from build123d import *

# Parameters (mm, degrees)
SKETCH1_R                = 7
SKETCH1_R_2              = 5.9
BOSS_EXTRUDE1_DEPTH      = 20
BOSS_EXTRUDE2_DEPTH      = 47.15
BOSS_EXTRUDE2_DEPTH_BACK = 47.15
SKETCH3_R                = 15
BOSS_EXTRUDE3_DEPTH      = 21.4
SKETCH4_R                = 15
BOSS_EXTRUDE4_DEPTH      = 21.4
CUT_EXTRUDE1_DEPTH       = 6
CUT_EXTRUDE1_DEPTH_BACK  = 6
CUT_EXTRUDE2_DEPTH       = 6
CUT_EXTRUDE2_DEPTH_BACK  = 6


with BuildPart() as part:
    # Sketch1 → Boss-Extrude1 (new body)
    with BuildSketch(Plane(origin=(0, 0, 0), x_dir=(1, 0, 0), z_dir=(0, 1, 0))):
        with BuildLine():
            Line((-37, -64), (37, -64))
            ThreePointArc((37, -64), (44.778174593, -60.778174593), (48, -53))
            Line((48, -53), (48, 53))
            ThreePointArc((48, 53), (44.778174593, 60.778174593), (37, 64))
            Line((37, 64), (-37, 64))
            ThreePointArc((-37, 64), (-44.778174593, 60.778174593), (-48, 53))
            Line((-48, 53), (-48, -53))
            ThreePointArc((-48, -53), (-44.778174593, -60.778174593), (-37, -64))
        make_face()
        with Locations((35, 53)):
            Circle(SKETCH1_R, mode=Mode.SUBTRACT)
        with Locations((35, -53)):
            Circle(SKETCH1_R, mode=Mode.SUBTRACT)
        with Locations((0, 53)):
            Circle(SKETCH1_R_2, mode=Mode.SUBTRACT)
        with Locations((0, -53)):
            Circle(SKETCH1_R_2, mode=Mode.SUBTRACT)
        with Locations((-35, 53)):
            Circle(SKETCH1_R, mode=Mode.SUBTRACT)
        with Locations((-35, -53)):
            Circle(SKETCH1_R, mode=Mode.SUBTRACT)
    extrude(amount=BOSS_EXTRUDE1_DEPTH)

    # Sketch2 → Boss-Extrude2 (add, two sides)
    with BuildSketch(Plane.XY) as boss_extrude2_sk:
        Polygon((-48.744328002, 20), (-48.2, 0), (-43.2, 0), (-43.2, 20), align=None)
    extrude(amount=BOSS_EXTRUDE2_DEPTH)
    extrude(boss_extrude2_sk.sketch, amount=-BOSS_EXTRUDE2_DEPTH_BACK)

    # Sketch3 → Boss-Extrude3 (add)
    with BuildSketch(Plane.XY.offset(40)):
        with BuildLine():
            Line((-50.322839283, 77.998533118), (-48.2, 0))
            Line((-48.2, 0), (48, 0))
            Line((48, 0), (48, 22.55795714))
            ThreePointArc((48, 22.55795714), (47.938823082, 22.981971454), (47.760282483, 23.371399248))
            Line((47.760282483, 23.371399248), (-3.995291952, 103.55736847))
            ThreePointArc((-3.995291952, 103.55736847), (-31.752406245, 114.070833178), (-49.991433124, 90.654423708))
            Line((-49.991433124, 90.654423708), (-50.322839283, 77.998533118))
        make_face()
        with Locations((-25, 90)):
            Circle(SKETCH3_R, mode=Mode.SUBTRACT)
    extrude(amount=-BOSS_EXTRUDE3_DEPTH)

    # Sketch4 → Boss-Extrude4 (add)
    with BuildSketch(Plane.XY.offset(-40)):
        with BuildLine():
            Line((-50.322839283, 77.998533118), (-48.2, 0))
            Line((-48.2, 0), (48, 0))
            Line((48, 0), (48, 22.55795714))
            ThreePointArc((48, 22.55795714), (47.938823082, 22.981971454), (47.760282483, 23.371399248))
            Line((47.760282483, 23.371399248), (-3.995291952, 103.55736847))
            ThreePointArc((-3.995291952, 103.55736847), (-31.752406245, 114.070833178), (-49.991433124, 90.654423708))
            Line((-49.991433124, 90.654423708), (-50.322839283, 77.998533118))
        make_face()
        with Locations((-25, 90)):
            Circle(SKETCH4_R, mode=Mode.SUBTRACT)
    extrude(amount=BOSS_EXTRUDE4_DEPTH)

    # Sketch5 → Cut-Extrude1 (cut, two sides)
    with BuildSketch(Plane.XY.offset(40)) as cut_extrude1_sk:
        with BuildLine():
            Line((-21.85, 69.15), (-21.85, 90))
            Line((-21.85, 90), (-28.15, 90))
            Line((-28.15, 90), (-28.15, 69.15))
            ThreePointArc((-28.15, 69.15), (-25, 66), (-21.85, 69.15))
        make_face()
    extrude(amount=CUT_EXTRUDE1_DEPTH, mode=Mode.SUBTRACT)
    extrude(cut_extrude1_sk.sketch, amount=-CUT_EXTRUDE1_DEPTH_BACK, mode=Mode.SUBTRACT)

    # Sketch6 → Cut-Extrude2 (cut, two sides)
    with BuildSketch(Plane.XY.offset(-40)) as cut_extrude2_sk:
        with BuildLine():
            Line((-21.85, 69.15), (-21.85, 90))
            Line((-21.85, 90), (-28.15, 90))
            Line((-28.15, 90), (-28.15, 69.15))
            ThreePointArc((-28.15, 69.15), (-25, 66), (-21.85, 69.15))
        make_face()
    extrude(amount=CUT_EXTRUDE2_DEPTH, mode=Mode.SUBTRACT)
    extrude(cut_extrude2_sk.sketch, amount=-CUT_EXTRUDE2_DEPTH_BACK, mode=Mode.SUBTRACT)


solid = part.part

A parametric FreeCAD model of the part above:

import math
import FreeCAD as App
import Part
import Sketcher
Q = App.Units.Quantity


def add_polygon(sketch, points):
    """Adds a closed chain of lines whose ends are joined by coincident constraints."""
    first, n = sketch.GeometryCount, len(points)
    for a, b in zip(points, points[1:] + points[:1]):
        sketch.addGeometry(Part.LineSegment(App.Vector(*a, 0), App.Vector(*b, 0)), False)
    for i in range(n):
        sketch.addConstraint(Sketcher.Constraint("Coincident", first + i, 2, first + (i + 1) % n, 1))

doc = App.newDocument("Part")
body = doc.addObject("PartDesign::Body", "Body")

sketch1 = body.newObject("Sketcher::SketchObject", "Sketch")
sketch1.AttachmentSupport = (doc.getObject("XZ_Plane"), [""])
sketch1.MapMode = "FlatFace"
sketch1.addGeometry([
    Part.LineSegment(App.Vector(-37, 64, 0), App.Vector(37, 64, 0)),
    Part.ArcOfCircle(Part.Circle(App.Vector(37, 53, 0), App.Vector(0, 0, 1), 11), math.radians(0), math.radians(90)),
    Part.LineSegment(App.Vector(48, 53, 0), App.Vector(48, -53, 0)),
    Part.ArcOfCircle(Part.Circle(App.Vector(37, -53, 0), App.Vector(0, 0, 1), 11), math.radians(-90), math.radians(0)),
    Part.LineSegment(App.Vector(37, -64, 0), App.Vector(-37, -64, 0)),
    Part.ArcOfCircle(Part.Circle(App.Vector(-37, -53, 0), App.Vector(0, 0, 1), 11), math.radians(180), math.radians(270)),
    Part.LineSegment(App.Vector(-48, -53, 0), App.Vector(-48, 53, 0)),
    Part.ArcOfCircle(Part.Circle(App.Vector(-37, 53, 0), App.Vector(0, 0, 1), 11), math.radians(90), math.radians(180)),
    Part.Circle(App.Vector(-35, 53, 0), App.Vector(0, 0, 1), 7),
    Part.Circle(App.Vector(0, 53, 0), App.Vector(0, 0, 1), 6),
    Part.Circle(App.Vector(35, 53, 0), App.Vector(0, 0, 1), 7),
    Part.Circle(App.Vector(-35, -53, 0), App.Vector(0, 0, 1), 7),
    Part.Circle(App.Vector(0, -53, 0), App.Vector(0, 0, 1), 6),
    Part.Circle(App.Vector(35, -53, 0), App.Vector(0, 0, 1), 7),
], False)
sketch1.addConstraint([
    Sketcher.Constraint("Tangent", 0, 2, 1, 2),
    Sketcher.Constraint("Tangent", 1, 1, 2, 1),
    Sketcher.Constraint("Tangent", 2, 2, 3, 2),
    Sketcher.Constraint("Tangent", 3, 1, 4, 1),
    Sketcher.Constraint("Tangent", 4, 2, 5, 2),
    Sketcher.Constraint("Tangent", 5, 1, 6, 1),
    Sketcher.Constraint("Tangent", 6, 2, 7, 2),
    Sketcher.Constraint("Tangent", 7, 1, 0, 1),
    Sketcher.Constraint("Horizontal", 0),
    Sketcher.Constraint("Vertical", 2),
    Sketcher.Constraint("Horizontal", 4),
    Sketcher.Constraint("Vertical", 6),
    Sketcher.Constraint("Equal", 1, 3),
    Sketcher.Constraint("Equal", 3, 5),
    Sketcher.Constraint("Equal", 5, 7),
    Sketcher.Constraint("Equal", 8, 10),
    Sketcher.Constraint("Equal", 10, 11),
    Sketcher.Constraint("Equal", 9, 12),
    Sketcher.Constraint("Equal", 11, 13),
    Sketcher.Constraint("Symmetric", 1, 3, 5, 3, -1, 1),
    Sketcher.Constraint("Symmetric", 10, 3, 11, 3, -1, 1),
    Sketcher.Constraint("Symmetric", 9, 3, 12, 3, -1, 1),
    Sketcher.Constraint("Symmetric", 8, 3, 13, 3, -1, 1),
    Sketcher.Constraint("Symmetric", 8, 3, 10, 3, -2),
    Sketcher.Constraint("PointOnObject", 9, 3, -2),
    Sketcher.Constraint("Horizontal", 7, 3, 8, 3),
    Sketcher.Constraint("Horizontal", 8, 3, 9, 3),
    Sketcher.Constraint("Diameter", 8, 14.0),
    Sketcher.Constraint("Radius", 1, 11.0),
    Sketcher.Constraint("Diameter", 9, 11.8),
    Sketcher.Constraint("DistanceX", 0, 1, 0, 2, 74.0),
    Sketcher.Constraint("DistanceY", 2, 2, 2, 1, 106.0),
    Sketcher.Constraint("DistanceX", 8, 3, -1, 1, 35.0),
])
pad1 = body.newObject("PartDesign::Pad", "Pad")
pad1.Profile = sketch1
pad1.Length = 20
pad1.Reversed = True

sketch2 = body.newObject("Sketcher::SketchObject", "Sketch001")
sketch2.AttachmentSupport = (doc.getObject("XY_Plane"), [""])
sketch2.MapMode = "FlatFace"
add_polygon(sketch2, [(-49, 20), (-48, 0), (-43, 0), (-43, 20)])
sketch2.addConstraint([
    Sketcher.Constraint("Horizontal", 1),
    Sketcher.Constraint("Vertical", 2),
    Sketcher.Constraint("Horizontal", 3),
    Sketcher.Constraint("PointOnObject", 0, 2, -1),
    Sketcher.Constraint("DistanceX", 1, 1, 1, 2, 5.0),
    Sketcher.Constraint("DistanceY", 2, 1, 2, 2, 20.0),
    Sketcher.Constraint("DistanceX", 0, 2, -1, 1, 48.2),
    Sketcher.Constraint("DistanceX", 3, 2, 3, 1, 5.544328),
])
pad2 = body.newObject("PartDesign::Pad", "Pad001")
pad2.Profile = sketch2
pad2.Type = "TwoLengths"
pad2.Length = 47.15
pad2.Length2 = 47.15

sketch3 = body.newObject("Sketcher::SketchObject", "Sketch002")
sketch3.AttachmentSupport = (doc.getObject("XY_Plane"), [""])
sketch3.MapMode = "FlatFace"
sketch3.AttachmentOffset = App.Placement(App.Vector(0, 0, 40), App.Rotation())
sketch3.addGeometry([
    Part.LineSegment(App.Vector(-50.3, 78, 0), App.Vector(-48.2, 0, 0)),
    Part.LineSegment(App.Vector(-48.2, 0, 0), App.Vector(48, 0, 0)),
    Part.LineSegment(App.Vector(48, 0, 0), App.Vector(48, 22.6, 0)),
    Part.ArcOfCircle(Part.Circle(App.Vector(46.5, 22.6, 0), App.Vector(0, 0, 1), 1.5), math.radians(0), math.radians(33)),
    Part.LineSegment(App.Vector(47.8, 23.4, 0), App.Vector(-4, 103.6, 0)),
    Part.ArcOfCircle(Part.Circle(App.Vector(-25, 90, 0), App.Vector(0, 0, 1), 25), math.radians(33), math.radians(178)),
    Part.LineSegment(App.Vector(-50, 90.7, 0), App.Vector(-50.3, 78, 0)),
    Part.Circle(App.Vector(-25, 90, 0), App.Vector(0, 0, 1), 15),
], False)
sketch3.addConstraint([
    Sketcher.Constraint("Coincident", 0, 2, 1, 1),
    Sketcher.Constraint("Coincident", 1, 2, 2, 1),
    Sketcher.Constraint("Tangent", 2, 2, 3, 1),
    Sketcher.Constraint("Tangent", 3, 2, 4, 1),
    Sketcher.Constraint("Tangent", 4, 2, 5, 1),
    Sketcher.Constraint("Tangent", 5, 2, 6, 1),
    Sketcher.Constraint("Coincident", 6, 2, 0, 1),
    Sketcher.Constraint("Horizontal", 1),
    Sketcher.Constraint("Vertical", 2),
    Sketcher.Constraint("Coincident", 7, 3, 5, 3),
    Sketcher.Constraint("PointOnObject", 0, 2, -1),
    Sketcher.Constraint("Diameter", 7, 30.0),
    Sketcher.Constraint("Radius", 5, 25.0),
    Sketcher.Constraint("Radius", 3, 1.5),
    Sketcher.Constraint("DistanceX", 1, 1, 1, 2, 96.2),
    Sketcher.Constraint("DistanceX", 5, 3, -1, 1, 25.0),
    Sketcher.Constraint("DistanceY", -1, 1, 5, 3, 90.0),
    Sketcher.Constraint("DistanceX", -1, 1, 1, 2, 48.0),
    Sketcher.Constraint("Angle", 6, Q("-91.5 deg")),
    Sketcher.Constraint("Angle", 4, Q("122.839989 deg")),
    Sketcher.Constraint("Distance", 6, 12.660229),
])
pad3 = body.newObject("PartDesign::Pad", "Pad002")
pad3.Profile = sketch3
pad3.Length = 21.4
pad3.Reversed = True

sketch4 = body.newObject("Sketcher::SketchObject", "Sketch003")
sketch4.AttachmentSupport = (doc.getObject("XY_Plane"), [""])
sketch4.MapMode = "FlatFace"
sketch4.AttachmentOffset = App.Placement(App.Vector(0, 0, -40), App.Rotation())
sketch4.addGeometry([
    Part.LineSegment(App.Vector(-50.3, 78, 0), App.Vector(-48.2, 0, 0)),
    Part.LineSegment(App.Vector(-48.2, 0, 0), App.Vector(48, 0, 0)),
    Part.LineSegment(App.Vector(48, 0, 0), App.Vector(48, 22.6, 0)),
    Part.ArcOfCircle(Part.Circle(App.Vector(46.5, 22.6, 0), App.Vector(0, 0, 1), 1.5), math.radians(0), math.radians(33)),
    Part.LineSegment(App.Vector(47.8, 23.4, 0), App.Vector(-4, 103.6, 0)),
    Part.ArcOfCircle(Part.Circle(App.Vector(-25, 90, 0), App.Vector(0, 0, 1), 25), math.radians(33), math.radians(178)),
    Part.LineSegment(App.Vector(-50, 90.7, 0), App.Vector(-50.3, 78, 0)),
    Part.Circle(App.Vector(-25, 90, 0), App.Vector(0, 0, 1), 15),
], False)
sketch4.addConstraint([
    Sketcher.Constraint("Coincident", 0, 2, 1, 1),
    Sketcher.Constraint("Coincident", 1, 2, 2, 1),
    Sketcher.Constraint("Tangent", 2, 2, 3, 1),
    Sketcher.Constraint("Tangent", 3, 2, 4, 1),
    Sketcher.Constraint("Tangent", 4, 2, 5, 1),
    Sketcher.Constraint("Tangent", 5, 2, 6, 1),
    Sketcher.Constraint("Coincident", 6, 2, 0, 1),
    Sketcher.Constraint("Horizontal", 1),
    Sketcher.Constraint("Vertical", 2),
    Sketcher.Constraint("Coincident", 7, 3, 5, 3),
    Sketcher.Constraint("PointOnObject", 0, 2, -1),
    Sketcher.Constraint("Diameter", 7, 30.0),
    Sketcher.Constraint("Radius", 5, 25.0),
    Sketcher.Constraint("Radius", 3, 1.5),
    Sketcher.Constraint("DistanceX", 1, 1, 1, 2, 96.2),
    Sketcher.Constraint("DistanceX", 5, 3, -1, 1, 25.0),
    Sketcher.Constraint("DistanceY", -1, 1, 5, 3, 90.0),
    Sketcher.Constraint("DistanceX", -1, 1, 1, 2, 48.0),
    Sketcher.Constraint("Angle", 6, Q("-91.5 deg")),
    Sketcher.Constraint("Angle", 4, Q("122.839989 deg")),
    Sketcher.Constraint("Distance", 6, 12.660229),
])
pad4 = body.newObject("PartDesign::Pad", "Pad003")
pad4.Profile = sketch4
pad4.Length = 21.4

sketch5 = body.newObject("Sketcher::SketchObject", "Sketch004")
sketch5.AttachmentSupport = (doc.getObject("XY_Plane"), [""])
sketch5.MapMode = "FlatFace"
sketch5.AttachmentOffset = App.Placement(App.Vector(0, 0, 40), App.Rotation())
sketch5.addGeometry([
    Part.LineSegment(App.Vector(-21.9, 69.2, 0), App.Vector(-21.9, 90, 0)),
    Part.LineSegment(App.Vector(-21.9, 90, 0), App.Vector(-28.1, 90, 0)),
    Part.LineSegment(App.Vector(-28.1, 90, 0), App.Vector(-28.1, 69.2, 0)),
    Part.ArcOfCircle(Part.Circle(App.Vector(-25, 69.2, 0), App.Vector(0, 0, 1), 3.1), math.radians(180), math.radians(360)),
], False)
sketch5.addConstraint([
    Sketcher.Constraint("Coincident", 0, 2, 1, 1),
    Sketcher.Constraint("Coincident", 1, 2, 2, 1),
    Sketcher.Constraint("Tangent", 2, 2, 3, 1),
    Sketcher.Constraint("Tangent", 3, 2, 0, 1),
    Sketcher.Constraint("Vertical", 0),
    Sketcher.Constraint("Horizontal", 1),
    Sketcher.Constraint("Vertical", 2),
    Sketcher.Constraint("Radius", 3, 3.15),
    Sketcher.Constraint("DistanceX", 3, 3, -1, 1, 25.0),
    Sketcher.Constraint("DistanceY", -1, 1, 0, 2, 90.0),
    Sketcher.Constraint("DistanceY", 0, 1, 0, 2, 20.85),
])
pocket1 = body.newObject("PartDesign::Pocket", "Pocket")
pocket1.Profile = sketch5
pocket1.Type = "TwoLengths"
pocket1.Length = 6
pocket1.Length2 = 6
pocket1.Reversed = True

sketch6 = body.newObject("Sketcher::SketchObject", "Sketch005")
sketch6.AttachmentSupport = (doc.getObject("XY_Plane"), [""])
sketch6.MapMode = "FlatFace"
sketch6.AttachmentOffset = App.Placement(App.Vector(0, 0, -40), App.Rotation())
sketch6.addGeometry([
    Part.LineSegment(App.Vector(-21.9, 69.2, 0), App.Vector(-21.9, 90, 0)),
    Part.LineSegment(App.Vector(-21.9, 90, 0), App.Vector(-28.1, 90, 0)),
    Part.LineSegment(App.Vector(-28.1, 90, 0), App.Vector(-28.1, 69.2, 0)),
    Part.ArcOfCircle(Part.Circle(App.Vector(-25, 69.2, 0), App.Vector(0, 0, 1), 3.1), math.radians(180), math.radians(360)),
], False)
sketch6.addConstraint([
    Sketcher.Constraint("Coincident", 0, 2, 1, 1),
    Sketcher.Constraint("Coincident", 1, 2, 2, 1),
    Sketcher.Constraint("Tangent", 2, 2, 3, 1),
    Sketcher.Constraint("Tangent", 3, 2, 0, 1),
    Sketcher.Constraint("Vertical", 0),
    Sketcher.Constraint("Horizontal", 1),
    Sketcher.Constraint("Vertical", 2),
    Sketcher.Constraint("Radius", 3, 3.15),
    Sketcher.Constraint("DistanceX", 3, 3, -1, 1, 25.0),
    Sketcher.Constraint("DistanceY", -1, 1, 0, 2, 90.0),
    Sketcher.Constraint("DistanceY", 0, 1, 0, 2, 20.85),
])
pocket2 = body.newObject("PartDesign::Pocket", "Pocket001")
pocket2.Profile = sketch6
pocket2.Type = "TwoLengths"
pocket2.Length = 6
pocket2.Length2 = 6
pocket2.Reversed = True

doc.recompute()
